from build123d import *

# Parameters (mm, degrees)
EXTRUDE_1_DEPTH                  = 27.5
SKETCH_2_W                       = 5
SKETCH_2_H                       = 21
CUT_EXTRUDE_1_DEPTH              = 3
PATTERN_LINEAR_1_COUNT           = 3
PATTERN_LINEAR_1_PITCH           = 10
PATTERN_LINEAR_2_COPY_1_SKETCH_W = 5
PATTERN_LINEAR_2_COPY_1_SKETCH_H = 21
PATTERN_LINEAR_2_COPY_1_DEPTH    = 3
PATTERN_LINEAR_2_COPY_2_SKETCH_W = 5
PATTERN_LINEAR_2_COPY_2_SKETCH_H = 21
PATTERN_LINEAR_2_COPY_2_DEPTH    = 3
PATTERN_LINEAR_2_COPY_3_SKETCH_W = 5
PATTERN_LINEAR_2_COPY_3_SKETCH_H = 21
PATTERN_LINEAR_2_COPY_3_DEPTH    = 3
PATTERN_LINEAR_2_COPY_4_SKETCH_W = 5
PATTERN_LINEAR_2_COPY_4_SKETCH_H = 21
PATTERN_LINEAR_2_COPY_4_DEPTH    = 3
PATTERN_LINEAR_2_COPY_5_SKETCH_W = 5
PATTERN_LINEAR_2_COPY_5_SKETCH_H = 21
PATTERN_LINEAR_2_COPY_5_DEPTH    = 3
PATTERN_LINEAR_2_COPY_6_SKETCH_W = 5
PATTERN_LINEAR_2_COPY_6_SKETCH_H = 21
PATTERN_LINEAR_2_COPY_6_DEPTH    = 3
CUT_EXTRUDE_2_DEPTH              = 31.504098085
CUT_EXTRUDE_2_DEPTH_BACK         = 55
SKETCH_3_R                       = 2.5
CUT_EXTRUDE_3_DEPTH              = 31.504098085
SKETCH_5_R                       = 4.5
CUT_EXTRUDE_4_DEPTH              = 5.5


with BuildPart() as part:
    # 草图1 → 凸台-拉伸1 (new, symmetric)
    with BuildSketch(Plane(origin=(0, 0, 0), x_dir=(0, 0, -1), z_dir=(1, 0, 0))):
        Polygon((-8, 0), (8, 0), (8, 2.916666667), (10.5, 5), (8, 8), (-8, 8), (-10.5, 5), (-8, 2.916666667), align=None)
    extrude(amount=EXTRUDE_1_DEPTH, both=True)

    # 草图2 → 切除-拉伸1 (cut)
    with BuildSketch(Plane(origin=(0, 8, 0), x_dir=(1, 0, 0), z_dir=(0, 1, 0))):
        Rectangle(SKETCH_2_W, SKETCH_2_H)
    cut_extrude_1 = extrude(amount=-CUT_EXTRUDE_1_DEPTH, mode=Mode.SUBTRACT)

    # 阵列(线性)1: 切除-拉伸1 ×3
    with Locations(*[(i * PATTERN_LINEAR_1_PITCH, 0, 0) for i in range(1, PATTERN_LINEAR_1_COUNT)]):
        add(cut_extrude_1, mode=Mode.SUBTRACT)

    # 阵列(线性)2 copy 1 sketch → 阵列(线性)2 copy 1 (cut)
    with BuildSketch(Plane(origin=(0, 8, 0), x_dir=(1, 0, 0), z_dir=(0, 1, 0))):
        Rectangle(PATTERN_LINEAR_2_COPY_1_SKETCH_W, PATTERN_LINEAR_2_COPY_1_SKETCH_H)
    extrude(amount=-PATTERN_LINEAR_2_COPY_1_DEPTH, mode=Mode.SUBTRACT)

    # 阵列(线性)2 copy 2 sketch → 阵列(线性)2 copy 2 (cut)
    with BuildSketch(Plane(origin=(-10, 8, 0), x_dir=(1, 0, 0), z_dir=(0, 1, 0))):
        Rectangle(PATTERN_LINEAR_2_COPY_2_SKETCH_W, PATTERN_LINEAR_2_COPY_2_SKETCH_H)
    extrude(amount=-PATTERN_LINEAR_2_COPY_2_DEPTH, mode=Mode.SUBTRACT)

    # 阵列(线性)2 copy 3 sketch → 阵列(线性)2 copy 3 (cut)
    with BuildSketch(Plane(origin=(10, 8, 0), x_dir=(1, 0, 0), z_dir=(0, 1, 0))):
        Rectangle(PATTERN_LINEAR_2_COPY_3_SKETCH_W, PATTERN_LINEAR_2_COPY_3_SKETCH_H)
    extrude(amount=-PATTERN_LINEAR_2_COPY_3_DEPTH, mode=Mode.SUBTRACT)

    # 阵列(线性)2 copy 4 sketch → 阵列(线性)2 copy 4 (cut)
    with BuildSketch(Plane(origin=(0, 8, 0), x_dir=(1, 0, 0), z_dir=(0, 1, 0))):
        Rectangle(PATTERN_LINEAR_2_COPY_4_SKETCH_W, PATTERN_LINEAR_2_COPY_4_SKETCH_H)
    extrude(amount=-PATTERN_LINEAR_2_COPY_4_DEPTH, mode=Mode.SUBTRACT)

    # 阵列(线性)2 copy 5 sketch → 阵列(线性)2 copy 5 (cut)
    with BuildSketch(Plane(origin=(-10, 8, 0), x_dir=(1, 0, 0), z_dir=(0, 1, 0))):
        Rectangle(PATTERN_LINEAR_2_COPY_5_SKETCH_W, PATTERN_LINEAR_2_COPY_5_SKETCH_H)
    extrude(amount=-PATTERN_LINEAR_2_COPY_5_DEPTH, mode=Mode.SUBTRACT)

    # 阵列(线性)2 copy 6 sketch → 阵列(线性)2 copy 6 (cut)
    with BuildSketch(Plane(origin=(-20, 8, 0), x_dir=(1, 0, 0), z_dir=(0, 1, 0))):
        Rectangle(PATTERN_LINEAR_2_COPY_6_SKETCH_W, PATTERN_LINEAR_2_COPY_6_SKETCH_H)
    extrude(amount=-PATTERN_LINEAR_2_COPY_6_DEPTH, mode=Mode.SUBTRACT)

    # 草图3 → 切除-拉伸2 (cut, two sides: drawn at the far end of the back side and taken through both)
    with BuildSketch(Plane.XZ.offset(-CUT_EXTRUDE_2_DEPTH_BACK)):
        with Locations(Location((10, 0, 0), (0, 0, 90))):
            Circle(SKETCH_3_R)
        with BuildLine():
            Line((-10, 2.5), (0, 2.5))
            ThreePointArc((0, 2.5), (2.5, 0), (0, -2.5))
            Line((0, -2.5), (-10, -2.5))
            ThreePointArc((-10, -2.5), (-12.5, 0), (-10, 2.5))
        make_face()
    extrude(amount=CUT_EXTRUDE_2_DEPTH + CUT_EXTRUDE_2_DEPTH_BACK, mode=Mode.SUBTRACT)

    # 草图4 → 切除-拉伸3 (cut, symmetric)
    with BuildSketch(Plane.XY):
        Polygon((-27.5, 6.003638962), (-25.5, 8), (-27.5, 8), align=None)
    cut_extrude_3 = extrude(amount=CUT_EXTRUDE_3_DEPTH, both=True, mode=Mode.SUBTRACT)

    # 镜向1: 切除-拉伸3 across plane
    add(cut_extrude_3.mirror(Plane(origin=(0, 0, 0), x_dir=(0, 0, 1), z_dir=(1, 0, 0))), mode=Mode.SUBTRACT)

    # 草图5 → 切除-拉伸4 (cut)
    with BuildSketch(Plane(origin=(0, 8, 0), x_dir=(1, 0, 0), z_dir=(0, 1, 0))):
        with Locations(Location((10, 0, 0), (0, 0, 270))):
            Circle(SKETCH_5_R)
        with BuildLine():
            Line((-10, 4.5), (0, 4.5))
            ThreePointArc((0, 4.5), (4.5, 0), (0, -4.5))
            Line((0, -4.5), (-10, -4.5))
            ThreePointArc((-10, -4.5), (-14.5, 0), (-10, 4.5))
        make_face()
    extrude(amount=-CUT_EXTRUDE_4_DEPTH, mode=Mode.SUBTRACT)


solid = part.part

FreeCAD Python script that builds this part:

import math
import FreeCAD as App
import Part
import Sketcher

V = App.Vector
Q = App.Units.Quantity


def add_polygon(sketch, points):
    """Adds a closed chain of lines whose ends are joined by coincident constraints."""
    first, n = sketch.GeometryCount, len(points)
    for a, b in zip(points, points[1:] + points[:1]):
        sketch.addGeometry(Part.LineSegment(App.Vector(*a, 0), App.Vector(*b, 0)), False)
    for i in range(n):
        sketch.addConstraint(Sketcher.Constraint("Coincident", first + i, 2, first + (i + 1) % n, 1))

doc = App.newDocument("Part")
body = doc.addObject("PartDesign::Body", "Body")

# Sketch on YZ plane
sketch1 = body.newObject("Sketcher::SketchObject", "Sketch")
sketch1.AttachmentSupport = (doc.getObject("YZ_Plane"), [""])
sketch1.MapMode = "FlatFace"
add_polygon(sketch1, [(0, 8), (0, -8), (2.9, -8), (5, -10.5), (8, -8), (8, 8), (5, 10.5), (2.9, 8)])  # lines 0-7
sketch1.addConstraint([
    Sketcher.Constraint("Vertical", 0),
    Sketcher.Constraint("Horizontal", 1),
    Sketcher.Constraint("Vertical", 4),
    Sketcher.Constraint("Horizontal", 7),
    Sketcher.Constraint("Symmetric", 0, 2, 7, 2, -1, 1),
    Sketcher.Constraint("Symmetric", 2, 2, 5, 2, -1),
    Sketcher.Constraint("Perpendicular", 2, 3),
    Sketcher.Constraint("Perpendicular", 5, 6),
    Sketcher.Constraint("Horizontal", 1, 2, 3, 2),
    Sketcher.Constraint("Horizontal", 4, 2, 6, 2),
    Sketcher.Constraint("DistanceY", 0, 2, 0, 1, Q("16 mm")),
    Sketcher.Constraint("DistanceX", -1, 1, 2, 2, Q("5 mm")),
    Sketcher.Constraint("DistanceX", -1, 1, 3, 2, Q("8 mm")),
    Sketcher.Constraint("DistanceY", 2, 2, 5, 2, Q("21 mm")),
])
pad1 = body.newObject("PartDesign::Pad", "Pad")
pad1.Profile = sketch1
pad1.Length = 55
pad1.Midplane = True

# Sketch on XZ plane
sketch2 = body.newObject("Sketcher::SketchObject", "Sketch001")
sketch2.AttachmentSupport = (doc.getObject("XZ_Plane"), [""])
sketch2.MapMode = "FlatFace"
sketch2.AttachmentOffset = App.Placement(V(0, 0, -8), App.Rotation())
add_polygon(sketch2, [(-2, -10), (-2, 10), (2, 10), (2, -10)])  # lines 0-3
sketch2.addConstraint([
    Sketcher.Constraint("Vertical", 0),
    Sketcher.Constraint("Horizontal", 1),
    Sketcher.Constraint("Vertical", 2),
    Sketcher.Constraint("Horizontal", 3),
    Sketcher.Constraint("Symmetric", 0, 2, 2, 2, -1, 1),
    Sketcher.Constraint("DistanceX", 1, 1, 1, 2, Q("5 mm")),
    Sketcher.Constraint("DistanceY", 0, 1, 0, 2, Q("21 mm")),
])
pocket1 = body.newObject("PartDesign::Pocket", "Pocket")
pocket1.Profile = sketch2
pocket1.Length = 3
pocket1.Reversed = True
doc.recompute()

linearpattern = body.newObject("PartDesign::LinearPattern", "LinearPattern")
linearpattern.Originals = [pocket1]
linearpattern.Direction = (doc.getObject("X_Axis"), [""])
linearpattern.Mode = "offset"
linearpattern.Offset = 10
linearpattern.Occurrences = 3
body.Tip = linearpattern

# Sketch on XZ plane
sketch3 = body.newObject("Sketcher::SketchObject", "Sketch002")
sketch3.AttachmentSupport = (doc.getObject("XZ_Plane"), [""])
sketch3.MapMode = "FlatFace"
sketch3.AttachmentOffset = App.Placement(V(0, 0, -8), App.Rotation())
add_polygon(sketch3, [(-2, -10), (-2, 10), (2, 10), (2, -10)])  # lines 0-3
sketch3.addConstraint([
    Sketcher.Constraint("Vertical", 0),
    Sketcher.Constraint("Horizontal", 1),
    Sketcher.Constraint("Vertical", 2),
    Sketcher.Constraint("Horizontal", 3),
    Sketcher.Constraint("Symmetric", 0, 2, 2, 2, -1, 1),
    Sketcher.Constraint("DistanceX", 1, 1, 1, 2, Q("5 mm")),
    Sketcher.Constraint("DistanceY", 0, 1, 0, 2, Q("21 mm")),
])
pocket2 = body.newObject("PartDesign::Pocket", "Pocket001")
pocket2.Profile = sketch3
pocket2.Length = 3
pocket2.Reversed = True

# Sketch on XZ plane
sketch4 = body.newObject("Sketcher::SketchObject", "Sketch003")
sketch4.AttachmentSupport = (doc.getObject("XZ_Plane"), [""])
sketch4.MapMode = "FlatFace"
sketch4.AttachmentOffset = App.Placement(V(0, 0, -8), App.Rotation())
add_polygon(sketch4, [(-12, -10), (-12, 10), (-8, 10), (-8, -10)])  # lines 0-3
sketch4.addConstraint([
    Sketcher.Constraint("Vertical", 0),
    Sketcher.Constraint("Horizontal", 1),
    Sketcher.Constraint("Vertical", 2),
    Sketcher.Constraint("Horizontal", 3),
    Sketcher.Constraint("DistanceX", 1, 1, 1, 2, Q("5 mm")),
    Sketcher.Constraint("DistanceY", 0, 1, 0, 2, Q("21 mm")),
    Sketcher.Constraint("DistanceX", 0, 2, -1, 1, Q("12.5 mm")),
    Sketcher.Constraint("DistanceY", -1, 1, 0, 2, Q("10.5 mm")),
])
pocket3 = body.newObject("PartDesign::Pocket", "Pocket002")
pocket3.Profile = sketch4
pocket3.Length = 3
pocket3.Reversed = True

# Sketch on XZ plane
sketch5 = body.newObject("Sketcher::SketchObject", "Sketch004")
sketch5.AttachmentSupport = (doc.getObject("XZ_Plane"), [""])
sketch5.MapMode = "FlatFace"
sketch5.AttachmentOffset = App.Placement(V(0, 0, -8), App.Rotation())
add_polygon(sketch5, [(8, -10), (8, 10), (12, 10), (12, -10)])  # lines 0-3
sketch5.addConstraint([
    Sketcher.Constraint("Vertical", 0),
    Sketcher.Constraint("Horizontal", 1),
    Sketcher.Constraint("Vertical", 2),
    Sketcher.Constraint("Horizontal", 3),
    Sketcher.Constraint("DistanceX", 1, 1, 1, 2, Q("5 mm")),
    Sketcher.Constraint("DistanceY", 0, 1, 0, 2, Q("21 mm")),
    Sketcher.Constraint("DistanceX", -1, 1, 0, 2, Q("7.5 mm")),
    Sketcher.Constraint("DistanceY", -1, 1, 0, 2, Q("10.5 mm")),
])
pocket4 = body.newObject("PartDesign::Pocket", "Pocket003")
pocket4.Profile = sketch5
pocket4.Length = 3
pocket4.Reversed = True

# Sketch on XZ plane
sketch6 = body.newObject("Sketcher::SketchObject", "Sketch005")
sketch6.AttachmentSupport = (doc.getObject("XZ_Plane"), [""])
sketch6.MapMode = "FlatFace"
sketch6.AttachmentOffset = App.Placement(V(0, 0, -8), App.Rotation())
add_polygon(sketch6, [(-2, -10), (-2, 10), (2, 10), (2, -10)])  # lines 0-3
sketch6.addConstraint([
    Sketcher.Constraint("Vertical", 0),
    Sketcher.Constraint("Horizontal", 1),
    Sketcher.Constraint("Vertical", 2),
    Sketcher.Constraint("Horizontal", 3),
    Sketcher.Constraint("Symmetric", 0, 2, 2, 2, -1, 1),
    Sketcher.Constraint("DistanceX", 1, 1, 1, 2, Q("5 mm")),
    Sketcher.Constraint("DistanceY", 0, 1, 0, 2, Q("21 mm")),
])
pocket5 = body.newObject("PartDesign::Pocket", "Pocket004")
pocket5.Profile = sketch6
pocket5.Length = 3
pocket5.Reversed = True

# Sketch on XZ plane
sketch7 = body.newObject("Sketcher::SketchObject", "Sketch006")
sketch7.AttachmentSupport = (doc.getObject("XZ_Plane"), [""])
sketch7.MapMode = "FlatFace"
sketch7.AttachmentOffset = App.Placement(V(0, 0, -8), App.Rotation())
add_polygon(sketch7, [(-12, -10), (-12, 10), (-8, 10), (-8, -10)])  # lines 0-3
sketch7.addConstraint([
    Sketcher.Constraint("Vertical", 0),
    Sketcher.Constraint("Horizontal", 1),
    Sketcher.Constraint("Vertical", 2),
    Sketcher.Constraint("Horizontal", 3),
    Sketcher.Constraint("DistanceX", 1, 1, 1, 2, Q("5 mm")),
    Sketcher.Constraint("DistanceY", 0, 1, 0, 2, Q("21 mm")),
    Sketcher.Constraint("DistanceX", 0, 2, -1, 1, Q("12.5 mm")),
    Sketcher.Constraint("DistanceY", -1, 1, 0, 2, Q("10.5 mm")),
])
pocket6 = body.newObject("PartDesign::Pocket", "Pocket005")
pocket6.Profile = sketch7
pocket6.Length = 3
pocket6.Reversed = True

# Sketch on XZ plane
sketch8 = body.newObject("Sketcher::SketchObject", "Sketch007")
sketch8.AttachmentSupport = (doc.getObject("XZ_Plane"), [""])
sketch8.MapMode = "FlatFace"
sketch8.AttachmentOffset = App.Placement(V(0, 0, -8), App.Rotation())
add_polygon(sketch8, [(-22, -10), (-22, 10), (-18, 10), (-18, -10)])  # lines 0-3
sketch8.addConstraint([
    Sketcher.Constraint("Vertical", 0),
    Sketcher.Constraint("Horizontal", 1),
    Sketcher.Constraint("Vertical", 2),
    Sketcher.Constraint("Horizontal", 3),
    Sketcher.Constraint("DistanceX", 1, 1, 1, 2, Q("5 mm")),
    Sketcher.Constraint("DistanceY", 0, 1, 0, 2, Q("21 mm")),
    Sketcher.Constraint("DistanceX", 0, 2, -1, 1, Q("22.5 mm")),
    Sketcher.Constraint("DistanceY", -1, 1, 0, 2, Q("10.5 mm")),
])
pocket7 = body.newObject("PartDesign::Pocket", "Pocket006")
pocket7.Profile = sketch8
pocket7.Length = 3
pocket7.Reversed = True

# Sketch on XZ plane
sketch9 = body.newObject("Sketcher::SketchObject", "Sketch008")
sketch9.AttachmentSupport = (doc.getObject("XZ_Plane"), [""])
sketch9.MapMode = "FlatFace"
sketch9.addGeometry([
    Part.Circle(V(10, 0, 0), V(0, 0, 1), 2.5),  # 0
    Part.LineSegment(V(0, 2.5, 0), V(-10, 2.5, 0)),  # 1
    Part.ArcOfCircle(Part.Circle(V(-10, 0, 0), V(0, 0, 1), 2.5), math.radians(90), math.radians(270)),  # 2
    Part.LineSegment(V(-10, -2.5, 0), V(0, -2.5, 0)),  # 3
    Part.ArcOfCircle(Part.Circle(V(0, 0, 0), V(0, 0, 1), 2.5), math.radians(-90), math.radians(90)),  # 4
], False)
sketch9.addConstraint([
    Sketcher.Constraint("Tangent", 1, 2, 2, 1),
    Sketcher.Constraint("Tangent", 2, 2, 3, 1),
    Sketcher.Constraint("Tangent", 3, 2, 4, 1),
    Sketcher.Constraint("Tangent", 4, 2, 1, 1),
    Sketcher.Constraint("Horizontal", 1),
    Sketcher.Constraint("Horizontal", 3),
    Sketcher.Constraint("Coincident", 4, 3, -1, 1),
    Sketcher.Constraint("Equal", 0, 2),
    Sketcher.Constraint("Symmetric", 0, 3, 2, 3, -1, 1),
    Sketcher.Constraint("Diameter", 0, Q("5 mm")),
    Sketcher.Constraint("DistanceX", 1, 2, 1, 1, Q("10 mm")),
])
pocket8 = body.newObject("PartDesign::Pocket", "Pocket007")
pocket8.Profile = sketch9
pocket8.Type = "ThroughAll"
pocket8.Midplane = True

# Sketch on XY plane
sketch10 = body.newObject("Sketcher::SketchObject", "Sketch009")
sketch10.AttachmentSupport = (doc.getObject("XY_Plane"), [""])
sketch10.MapMode = "FlatFace"
add_polygon(sketch10, [(-27.5, 6), (-25.5, 8), (-27.5, 8)])  # lines 0-2
sketch10.addConstraint([
    Sketcher.Constraint("Horizontal", 1),
    Sketcher.Constraint("Vertical", 2),
    Sketcher.Constraint("DistanceX", 1, 2, 1, 1, Q("2 mm")),
    Sketcher.Constraint("DistanceY", -1, 1, 0, 2, Q("8 mm")),
    Sketcher.Constraint("DistanceX", 0, 2, -1, 1, Q("25.5 mm")),
    Sketcher.Constraint("DistanceY", 2, 2, 2, 1, Q("1.996361 mm")),
])
pocket9 = body.newObject("PartDesign::Pocket", "Pocket008")
pocket9.Profile = sketch10
pocket9.Length = 63.008196
pocket9.Midplane = True
doc.recompute()

mirrored = body.newObject("PartDesign::Mirrored", "Mirrored")
mirrored.Originals = [pocket9]
mirrored.MirrorPlane = (doc.getObject("YZ_Plane"), [""])
body.Tip = mirrored

# Sketch on XZ plane
sketch11 = body.newObject("Sketcher::SketchObject", "Sketch010")
sketch11.AttachmentSupport = (doc.getObject("XZ_Plane"), [""])
sketch11.MapMode = "FlatFace"
sketch11.AttachmentOffset = App.Placement(V(0, 0, -8), App.Rotation())
sketch11.addGeometry([
    Part.Circle(V(10, 0, 0), V(0, 0, 1), 4.5),  # 0
    Part.LineSegment(V(0, -4.5, 0), V(-10, -4.5, 0)),  # 1
    Part.ArcOfCircle(Part.Circle(V(-10, 0, 0), V(0, 0, 1), 4.5), math.radians(90), math.radians(270)),  # 2
    Part.LineSegment(V(-10, 4.5, 0), V(0, 4.5, 0)),  # 3
    Part.ArcOfCircle(Part.Circle(V(0, 0, 0), V(0, 0, 1), 4.5), math.radians(-90), math.radians(90)),  # 4
], False)
sketch11.addConstraint([
    Sketcher.Constraint("Tangent", 1, 2, 2, 2),
    Sketcher.Constraint("Tangent", 2, 1, 3, 1),
    Sketcher.Constraint("Tangent", 3, 2, 4, 2),
    Sketcher.Constraint("Tangent", 4, 1, 1, 1),
    Sketcher.Constraint("Horizontal", 1),
    Sketcher.Constraint("Horizontal", 3),
    Sketcher.Constraint("Coincident", 4, 3, -1, 1),
    Sketcher.Constraint("Equal", 0, 2),
    Sketcher.Constraint("Symmetric", 0, 3, 2, 3, -1, 1),
    Sketcher.Constraint("Diameter", 0, Q("9 mm")),
    Sketcher.Constraint("DistanceX", 1, 2, 1, 1, Q("10 mm")),
])
pocket10 = body.newObject("PartDesign::Pocket", "Pocket009")
pocket10.Profile = sketch11
pocket10.Length = 5.5
pocket10.Reversed = True

doc.recompute()
